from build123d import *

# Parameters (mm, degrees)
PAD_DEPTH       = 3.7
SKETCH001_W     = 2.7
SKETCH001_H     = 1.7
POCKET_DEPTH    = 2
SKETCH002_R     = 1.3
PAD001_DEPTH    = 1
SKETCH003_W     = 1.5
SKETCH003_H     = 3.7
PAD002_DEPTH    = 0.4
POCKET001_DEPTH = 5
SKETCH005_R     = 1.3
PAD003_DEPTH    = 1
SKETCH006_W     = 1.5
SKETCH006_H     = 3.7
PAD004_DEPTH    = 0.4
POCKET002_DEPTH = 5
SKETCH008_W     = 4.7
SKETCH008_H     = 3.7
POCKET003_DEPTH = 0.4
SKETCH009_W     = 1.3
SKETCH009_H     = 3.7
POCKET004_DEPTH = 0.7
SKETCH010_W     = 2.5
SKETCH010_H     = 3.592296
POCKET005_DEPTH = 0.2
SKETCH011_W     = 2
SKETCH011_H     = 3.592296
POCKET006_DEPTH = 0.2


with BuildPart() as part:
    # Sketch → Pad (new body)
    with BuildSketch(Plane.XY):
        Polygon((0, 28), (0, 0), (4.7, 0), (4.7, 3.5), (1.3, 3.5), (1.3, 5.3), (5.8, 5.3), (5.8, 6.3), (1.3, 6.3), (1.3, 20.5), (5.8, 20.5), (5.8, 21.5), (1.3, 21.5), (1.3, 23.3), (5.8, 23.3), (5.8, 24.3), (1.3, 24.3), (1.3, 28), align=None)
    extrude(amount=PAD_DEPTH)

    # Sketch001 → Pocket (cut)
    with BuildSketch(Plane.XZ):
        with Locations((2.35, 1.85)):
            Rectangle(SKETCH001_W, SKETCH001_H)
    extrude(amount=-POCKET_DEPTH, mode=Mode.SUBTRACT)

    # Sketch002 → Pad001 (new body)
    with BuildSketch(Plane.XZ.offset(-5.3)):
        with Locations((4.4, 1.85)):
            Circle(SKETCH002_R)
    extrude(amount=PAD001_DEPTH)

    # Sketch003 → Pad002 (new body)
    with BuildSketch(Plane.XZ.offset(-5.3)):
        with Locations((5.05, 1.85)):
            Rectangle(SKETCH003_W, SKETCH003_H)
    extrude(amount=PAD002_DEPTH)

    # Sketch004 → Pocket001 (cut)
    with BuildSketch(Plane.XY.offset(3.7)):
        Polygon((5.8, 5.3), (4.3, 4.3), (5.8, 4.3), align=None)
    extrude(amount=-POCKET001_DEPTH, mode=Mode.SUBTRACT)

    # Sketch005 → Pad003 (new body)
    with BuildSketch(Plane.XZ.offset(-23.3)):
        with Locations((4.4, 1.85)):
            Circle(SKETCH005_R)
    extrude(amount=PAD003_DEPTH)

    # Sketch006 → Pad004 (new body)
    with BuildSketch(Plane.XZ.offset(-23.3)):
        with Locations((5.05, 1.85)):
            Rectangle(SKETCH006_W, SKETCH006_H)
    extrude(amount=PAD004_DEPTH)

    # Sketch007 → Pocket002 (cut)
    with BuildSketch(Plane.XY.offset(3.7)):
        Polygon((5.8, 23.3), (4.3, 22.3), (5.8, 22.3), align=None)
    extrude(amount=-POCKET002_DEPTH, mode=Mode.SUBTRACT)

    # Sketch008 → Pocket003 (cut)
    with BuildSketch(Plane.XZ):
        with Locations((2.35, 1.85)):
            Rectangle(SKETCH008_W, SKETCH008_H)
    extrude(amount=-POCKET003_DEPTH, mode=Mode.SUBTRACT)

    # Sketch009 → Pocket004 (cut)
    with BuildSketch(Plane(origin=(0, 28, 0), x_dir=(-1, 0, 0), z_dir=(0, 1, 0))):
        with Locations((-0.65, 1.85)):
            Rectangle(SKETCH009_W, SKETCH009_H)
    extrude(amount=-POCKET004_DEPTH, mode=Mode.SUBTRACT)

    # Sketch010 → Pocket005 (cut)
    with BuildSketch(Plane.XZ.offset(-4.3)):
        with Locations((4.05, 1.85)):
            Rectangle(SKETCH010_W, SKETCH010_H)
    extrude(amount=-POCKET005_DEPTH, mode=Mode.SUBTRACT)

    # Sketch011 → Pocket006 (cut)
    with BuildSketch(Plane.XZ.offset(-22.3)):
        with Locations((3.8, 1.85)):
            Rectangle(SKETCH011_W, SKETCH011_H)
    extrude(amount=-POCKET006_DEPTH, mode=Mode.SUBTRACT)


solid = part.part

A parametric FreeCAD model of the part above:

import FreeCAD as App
import Part
import Sketcher
from FreeCAD import Vector
Q = App.Units.Quantity

doc = App.newDocument("Part")
body = doc.addObject("PartDesign::Body", "Body")

# Sketch on XY plane
sketch1 = body.newObject("Sketcher::SketchObject", "Sketch")
sketch1.AttachmentSupport = (doc.getObject("XY_Plane"), [""])
sketch1.MapMode = "FlatFace"
sketch1.addGeometry([
    Part.LineSegment(Vector(0, 28, 0), Vector(0, 0, 0)),  # 0
    Part.LineSegment(Vector(0, 0, 0), Vector(4.7, 0, 0)),  # 1
    Part.LineSegment(Vector(4.7, 0, 0), Vector(4.7, 3.5, 0)),  # 2
    Part.LineSegment(Vector(4.7, 3.5, 0), Vector(1.3, 3.5, 0)),  # 3
    Part.LineSegment(Vector(1.3, 3.5, 0), Vector(1.3, 5.3, 0)),  # 4
    Part.LineSegment(Vector(1.3, 5.3, 0), Vector(5.8, 5.3, 0)),  # 5
    Part.LineSegment(Vector(5.8, 5.3, 0), Vector(5.8, 6.3, 0)),  # 6
    Part.LineSegment(Vector(5.8, 6.3, 0), Vector(1.3, 6.3, 0)),  # 7
    Part.LineSegment(Vector(1.3, 6.3, 0), Vector(1.3, 20.5, 0)),  # 8
    Part.LineSegment(Vector(1.3, 20.5, 0), Vector(5.8, 20.5, 0)),  # 9
    Part.LineSegment(Vector(5.8, 20.5, 0), Vector(5.8, 21.5, 0)),  # 10
    Part.LineSegment(Vector(5.8, 21.5, 0), Vector(1.3, 21.5, 0)),  # 11
    Part.LineSegment(Vector(1.3, 21.5, 0), Vector(1.3, 23.3, 0)),  # 12
    Part.LineSegment(Vector(1.3, 23.3, 0), Vector(5.8, 23.3, 0)),  # 13
    Part.LineSegment(Vector(5.8, 23.3, 0), Vector(5.8, 24.3, 0)),  # 14
    Part.LineSegment(Vector(5.8, 24.3, 0), Vector(1.3, 24.3, 0)),  # 15
    Part.LineSegment(Vector(1.3, 24.3, 0), Vector(1.3, 28, 0)),  # 16
    Part.LineSegment(Vector(1.3, 28, 0), Vector(0, 28, 0)),  # 17
], False)
sketch1.addConstraint([
    Sketcher.Constraint("Coincident", 0, 2, 1, 1),
    Sketcher.Constraint("Coincident", 1, 2, 2, 1),
    Sketcher.Constraint("Coincident", 2, 2, 3, 1),
    Sketcher.Constraint("Coincident", 3, 2, 4, 1),
    Sketcher.Constraint("Coincident", 4, 2, 5, 1),
    Sketcher.Constraint("Coincident", 5, 2, 6, 1),
    Sketcher.Constraint("Coincident", 6, 2, 7, 1),
    Sketcher.Constraint("Coincident", 7, 2, 8, 1),
    Sketcher.Constraint("Coincident", 8, 2, 9, 1),
    Sketcher.Constraint("Coincident", 9, 2, 10, 1),
    Sketcher.Constraint("Coincident", 10, 2, 11, 1),
    Sketcher.Constraint("Coincident", 11, 2, 12, 1),
    Sketcher.Constraint("Coincident", 12, 2, 13, 1),
    Sketcher.Constraint("Coincident", 13, 2, 14, 1),
    Sketcher.Constraint("Coincident", 14, 2, 15, 1),
    Sketcher.Constraint("Coincident", 15, 2, 16, 1),
    Sketcher.Constraint("Coincident", 16, 2, 17, 1),
    Sketcher.Constraint("Coincident", 17, 2, 0, 1),
    Sketcher.Constraint("Vertical", 0),
    Sketcher.Constraint("Horizontal", 1),
    Sketcher.Constraint("Vertical", 2),
    Sketcher.Constraint("Horizontal", 3),
    Sketcher.Constraint("Vertical", 4),
    Sketcher.Constraint("Horizontal", 5),
    Sketcher.Constraint("Vertical", 6),
    Sketcher.Constraint("Horizontal", 7),
    Sketcher.Constraint("Vertical", 8),
    Sketcher.Constraint("Horizontal", 9),
    Sketcher.Constraint("Vertical", 10),
    Sketcher.Constraint("Horizontal", 11),
    Sketcher.Constraint("Vertical", 12),
    Sketcher.Constraint("Horizontal", 13),
    Sketcher.Constraint("Vertical", 14),
    Sketcher.Constraint("Horizontal", 15),
    Sketcher.Constraint("Vertical", 16),
    Sketcher.Constraint("Horizontal", 17),
    Sketcher.Constraint("Coincident", 0, 2, -1, 1),
    Sketcher.Constraint("Vertical", 4, 2, 7, 2),
    Sketcher.Constraint("Vertical", 6, 2, 9, 2),
    Sketcher.Constraint("Vertical", 8, 2, 11, 2),
    Sketcher.Constraint("Vertical", 10, 2, 13, 2),
    Sketcher.Constraint("Vertical", 12, 2, 15, 2),
    Sketcher.Constraint("Equal", 6, 10),
    Sketcher.Constraint("Equal", 4, 12),
    Sketcher.Constraint("Equal", 10, 14),
    Sketcher.Constraint("DistanceY", 0, 2, 0, 1, Q("28 mm")),
    Sketcher.Constraint("DistanceY", 6, 1, 6, 2, Q("1 mm")),
    Sketcher.Constraint("DistanceX", 1, 1, 1, 2, Q("4.7 mm")),
    Sketcher.Constraint("DistanceX", 3, 2, 3, 1, Q("3.4 mm")),
    Sketcher.Constraint("DistanceX", 5, 1, 5, 2, Q("4.5 mm")),
    Sketcher.Constraint("DistanceY", 2, 1, 2, 2, Q("3.5 mm")),
    Sketcher.Constraint("DistanceY", 4, 1, 4, 2, Q("1.8 mm")),
    Sketcher.Constraint("DistanceY", 8, 1, 8, 2, Q("14.2 mm")),
])
pad1 = body.newObject("PartDesign::Pad", "Pad")
pad1.Profile = sketch1
pad1.Length = 3.7

# Sketch on XZ plane
sketch2 = body.newObject("Sketcher::SketchObject", "Sketch001")
sketch2.AttachmentSupport = (doc.getObject("XZ_Plane"), [""])
sketch2.MapMode = "FlatFace"
sketch2.addGeometry([
    Part.LineSegment(Vector(1, 2.7, 0), Vector(1, 1, 0)),
    Part.LineSegment(Vector(1, 1, 0), Vector(3.7, 1, 0)),
    Part.LineSegment(Vector(3.7, 1, 0), Vector(3.7, 2.7, 0)),
    Part.LineSegment(Vector(3.7, 2.7, 0), Vector(1, 2.7, 0)),
], False)
sketch2.addConstraint([
    Sketcher.Constraint("Coincident", 0, 2, 1, 1),
    Sketcher.Constraint("Coincident", 1, 2, 2, 1),
    Sketcher.Constraint("Coincident", 2, 2, 3, 1),
    Sketcher.Constraint("Coincident", 3, 2, 0, 1),
    Sketcher.Constraint("Vertical", 0),
    Sketcher.Constraint("Horizontal", 1),
    Sketcher.Constraint("Vertical", 2),
    Sketcher.Constraint("Horizontal", 3),
    Sketcher.Constraint("DistanceX", 1, 1, 1, 2, Q("2.7 mm")),
    Sketcher.Constraint("DistanceY", 0, 2, 0, 1, Q("1.7 mm")),
    Sketcher.Constraint("DistanceX", -1, 1, 0, 2, Q("1 mm")),
    Sketcher.Constraint("DistanceY", -1, 1, 0, 2, Q("1 mm")),
])
pocket1 = body.newObject("PartDesign::Pocket", "Pocket")
pocket1.Profile = sketch2
pocket1.Length = 2

# Sketch on XZ plane
sketch3 = body.newObject("Sketcher::SketchObject", "Sketch002")
sketch3.AttachmentSupport = (doc.getObject("XZ_Plane"), [""])
sketch3.MapMode = "FlatFace"
sketch3.AttachmentOffset = App.Placement(Vector(0, 0, -5.3), App.Rotation())
sketch3.addGeometry(Part.Circle(Vector(4.4, 1.9, 0), Vector(0, 0, 1), 1.3), False)
sketch3.addConstraint([
    Sketcher.Constraint("Diameter", 0, Q("2.6 mm")),
    Sketcher.Constraint("DistanceX", -1, 1, 0, 3, Q("4.4 mm")),
    Sketcher.Constraint("DistanceY", -1, 1, 0, 3, Q("1.85 mm")),
])
pad2 = body.newObject("PartDesign::Pad", "Pad001")
pad2.Profile = sketch3
pad2.Length = 1

# Sketch on XZ plane
sketch4 = body.newObject("Sketcher::SketchObject", "Sketch003")
sketch4.AttachmentSupport = (doc.getObject("XZ_Plane"), [""])
sketch4.MapMode = "FlatFace"
sketch4.AttachmentOffset = App.Placement(Vector(0, 0, -5.3), App.Rotation())
sketch4.addGeometry([
    Part.LineSegment(Vector(4.3, 3.7, 0), Vector(4.3, 0, 0)),
    Part.LineSegment(Vector(4.3, 0, 0), Vector(5.8, 0, 0)),
    Part.LineSegment(Vector(5.8, 0, 0), Vector(5.8, 3.7, 0)),
    Part.LineSegment(Vector(5.8, 3.7, 0), Vector(4.3, 3.7, 0)),
], False)
sketch4.addConstraint([
    Sketcher.Constraint("Coincident", 0, 2, 1, 1),
    Sketcher.Constraint("Coincident", 1, 2, 2, 1),
    Sketcher.Constraint("Coincident", 2, 2, 3, 1),
    Sketcher.Constraint("Coincident", 3, 2, 0, 1),
    Sketcher.Constraint("Vertical", 0),
    Sketcher.Constraint("Horizontal", 1),
    Sketcher.Constraint("Vertical", 2),
    Sketcher.Constraint("Horizontal", 3),
    Sketcher.Constraint("PointOnObject", 0, 2, -1),
    Sketcher.Constraint("DistanceX", 1, 1, 1, 2, Q("1.5 mm")),
    Sketcher.Constraint("DistanceY", 0, 2, 0, 1, Q("3.7 mm")),
    Sketcher.Constraint("DistanceX", -1, 1, 0, 2, Q("4.3 mm")),
])
pad3 = body.newObject("PartDesign::Pad", "Pad002")
pad3.Profile = sketch4
pad3.Length = 0.4

# Sketch on XY plane
sketch5 = body.newObject("Sketcher::SketchObject", "Sketch004")
sketch5.AttachmentSupport = (doc.getObject("XY_Plane"), [""])
sketch5.MapMode = "FlatFace"
sketch5.AttachmentOffset = App.Placement(Vector(0, 0, 3.7), App.Rotation())
sketch5.addGeometry([
    Part.LineSegment(Vector(5.8, 5.3, 0), Vector(4.3, 4.3, 0)),
    Part.LineSegment(Vector(4.3, 4.3, 0), Vector(5.8, 4.3, 0)),
    Part.LineSegment(Vector(5.8, 4.3, 0), Vector(5.8, 5.3, 0)),
], False)
sketch5.addConstraint([
    Sketcher.Constraint("Coincident", 0, 2, 1, 1),
    Sketcher.Constraint("Coincident", 1, 2, 2, 1),
    Sketcher.Constraint("Coincident", 2, 2, 0, 1),
    Sketcher.Constraint("Horizontal", 1),
    Sketcher.Constraint("Vertical", 2),
    Sketcher.Constraint("DistanceY", 2, 1, 2, 2, Q("1 mm")),
    Sketcher.Constraint("DistanceX", 1, 1, 1, 2, Q("1.5 mm")),
    Sketcher.Constraint("DistanceX", -1, 1, 0, 2, Q("4.3 mm")),
    Sketcher.Constraint("DistanceY", -1, 1, 0, 2, Q("4.3 mm")),
])
pocket2 = body.newObject("PartDesign::Pocket", "Pocket001")
pocket2.Profile = sketch5
pocket2.Length = 5

# Sketch on XZ plane
sketch6 = body.newObject("Sketcher::SketchObject", "Sketch005")
sketch6.AttachmentSupport = (doc.getObject("XZ_Plane"), [""])
sketch6.MapMode = "FlatFace"
sketch6.AttachmentOffset = App.Placement(Vector(0, 0, -23.3), App.Rotation())
sketch6.addGeometry(Part.Circle(Vector(4.4, 1.9, 0), Vector(0, 0, 1), 1.3), False)
sketch6.addConstraint([
    Sketcher.Constraint("Diameter", 0, Q("2.6 mm")),
    Sketcher.Constraint("DistanceX", -1, 1, 0, 3, Q("4.4 mm")),
    Sketcher.Constraint("DistanceY", -1, 1, 0, 3, Q("1.85 mm")),
])
pad4 = body.newObject("PartDesign::Pad", "Pad003")
pad4.Profile = sketch6
pad4.Length = 1

# Sketch on XZ plane
sketch7 = body.newObject("Sketcher::SketchObject", "Sketch006")
sketch7.AttachmentSupport = (doc.getObject("XZ_Plane"), [""])
sketch7.MapMode = "FlatFace"
sketch7.AttachmentOffset = App.Placement(Vector(0, 0, -23.3), App.Rotation())
sketch7.addGeometry([
    Part.LineSegment(Vector(4.3, 3.7, 0), Vector(4.3, 0, 0)),
    Part.LineSegment(Vector(4.3, 0, 0), Vector(5.8, 0, 0)),
    Part.LineSegment(Vector(5.8, 0, 0), Vector(5.8, 3.7, 0)),
    Part.LineSegment(Vector(5.8, 3.7, 0), Vector(4.3, 3.7, 0)),
], False)
sketch7.addConstraint([
    Sketcher.Constraint("Coincident", 0, 2, 1, 1),
    Sketcher.Constraint("Coincident", 1, 2, 2, 1),
    Sketcher.Constraint("Coincident", 2, 2, 3, 1),
    Sketcher.Constraint("Coincident", 3, 2, 0, 1),
    Sketcher.Constraint("Vertical", 0),
    Sketcher.Constraint("Horizontal", 1),
    Sketcher.Constraint("Vertical", 2),
    Sketcher.Constraint("Horizontal", 3),
    Sketcher.Constraint("PointOnObject", 0, 2, -1),
    Sketcher.Constraint("DistanceX", 1, 1, 1, 2, Q("1.5 mm")),
    Sketcher.Constraint("DistanceY", 0, 2, 0, 1, Q("3.7 mm")),
    Sketcher.Constraint("DistanceX", -1, 1, 0, 2, Q("4.3 mm")),
])
pad5 = body.newObject("PartDesign::Pad", "Pad004")
pad5.Profile = sketch7
pad5.Length = 0.4

# Sketch on XY plane
sketch8 = body.newObject("Sketcher::SketchObject", "Sketch007")
sketch8.AttachmentSupport = (doc.getObject("XY_Plane"), [""])
sketch8.MapMode = "FlatFace"
sketch8.AttachmentOffset = App.Placement(Vector(0, 0, 3.7), App.Rotation())
sketch8.addGeometry([
    Part.LineSegment(Vector(5.8, 23.3, 0), Vector(4.3, 22.3, 0)),
    Part.LineSegment(Vector(4.3, 22.3, 0), Vector(5.8, 22.3, 0)),
    Part.LineSegment(Vector(5.8, 22.3, 0), Vector(5.8, 23.3, 0)),
], False)
sketch8.addConstraint([
    Sketcher.Constraint("Coincident", 0, 2, 1, 1),
    Sketcher.Constraint("Coincident", 1, 2, 2, 1),
    Sketcher.Constraint("Coincident", 2, 2, 0, 1),
    Sketcher.Constraint("Horizontal", 1),
    Sketcher.Constraint("Vertical", 2),
    Sketcher.Constraint("DistanceY", 2, 1, 2, 2, Q("1 mm")),
    Sketcher.Constraint("DistanceX", 1, 1, 1, 2, Q("1.5 mm")),
    Sketcher.Constraint("DistanceX", -1, 1, 0, 2, Q("4.3 mm")),
    Sketcher.Constraint("DistanceY", -1, 1, 0, 2, Q("22.3 mm")),
])
pocket3 = body.newObject("PartDesign::Pocket", "Pocket002")
pocket3.Profile = sketch8
pocket3.Length = 5

# Sketch on XZ plane
sketch9 = body.newObject("Sketcher::SketchObject", "Sketch008")
sketch9.AttachmentSupport = (doc.getObject("XZ_Plane"), [""])
sketch9.MapMode = "FlatFace"
sketch9.addGeometry([
    Part.LineSegment(Vector(0, 3.7, 0), Vector(0, 0, 0)),
    Part.LineSegment(Vector(0, 0, 0), Vector(4.7, 0, 0)),
    Part.LineSegment(Vector(4.7, 0, 0), Vector(4.7, 3.7, 0)),
    Part.LineSegment(Vector(4.7, 3.7, 0), Vector(0, 3.7, 0)),
], False)
sketch9.addConstraint([
    Sketcher.Constraint("Coincident", 0, 2, 1, 1),
    Sketcher.Constraint("Coincident", 1, 2, 2, 1),
    Sketcher.Constraint("Coincident", 2, 2, 3, 1),
    Sketcher.Constraint("Coincident", 3, 2, 0, 1),
    Sketcher.Constraint("Vertical", 0),
    Sketcher.Constraint("Horizontal", 1),
    Sketcher.Constraint("Vertical", 2),
    Sketcher.Constraint("Horizontal", 3),
    Sketcher.Constraint("Coincident", 0, 2, -1, 1),
    Sketcher.Constraint("DistanceX", 1, 1, 1, 2, Q("4.7 mm")),
    Sketcher.Constraint("DistanceY", 0, 2, 0, 1, Q("3.7 mm")),
])
pocket4 = body.newObject("PartDesign::Pocket", "Pocket003")
pocket4.Profile = sketch9
pocket4.Length = 0.4

# Sketch on XZ plane
sketch10 = body.newObject("Sketcher::SketchObject", "Sketch009")
sketch10.AttachmentSupport = (doc.getObject("XZ_Plane"), [""])
sketch10.MapMode = "FlatFace"
sketch10.AttachmentOffset = App.Placement(Vector(0, 0, -28), App.Rotation())
sketch10.addGeometry([
    Part.LineSegment(Vector(1.3, 3.7, 0), Vector(1.3, 0, 0)),
    Part.LineSegment(Vector(1.3, 0, 0), Vector(0, 0, 0)),
    Part.LineSegment(Vector(0, 0, 0), Vector(0, 3.7, 0)),
    Part.LineSegment(Vector(0, 3.7, 0), Vector(1.3, 3.7, 0)),
], False)
sketch10.addConstraint([
    Sketcher.Constraint("Coincident", 0, 2, 1, 1),
    Sketcher.Constraint("Coincident", 1, 2, 2, 1),
    Sketcher.Constraint("Coincident", 2, 2, 3, 1),
    Sketcher.Constraint("Coincident", 3, 2, 0, 1),
    Sketcher.Constraint("Vertical", 0),
    Sketcher.Constraint("Horizontal", 1),
    Sketcher.Constraint("Vertical", 2),
    Sketcher.Constraint("Horizontal", 3),
    Sketcher.Constraint("Coincident", 1, 2, -1, 1),
    Sketcher.Constraint("DistanceX", 1, 2, 1, 1, Q("1.3 mm")),
    Sketcher.Constraint("DistanceY", 0, 2, 0, 1, Q("3.7 mm")),
])
pocket5 = body.newObject("PartDesign::Pocket", "Pocket004")
pocket5.Profile = sketch10
pocket5.Length = 0.7
pocket5.Reversed = True

# Sketch on XZ plane
sketch11 = body.newObject("Sketcher::SketchObject", "Sketch010")
sketch11.AttachmentSupport = (doc.getObject("XZ_Plane"), [""])
sketch11.MapMode = "FlatFace"
sketch11.AttachmentOffset = App.Placement(Vector(0, 0, -4.3), App.Rotation())
sketch11.addGeometry([
    Part.LineSegment(Vector(2.8, 3.6, 0), Vector(2.8, 0.1, 0)),
    Part.LineSegment(Vector(2.8, 0.1, 0), Vector(5.3, 0.1, 0)),
    Part.LineSegment(Vector(5.3, 0.1, 0), Vector(5.3, 3.6, 0)),
    Part.LineSegment(Vector(5.3, 3.6, 0), Vector(2.8, 3.6, 0)),
], False)
sketch11.addConstraint([
    Sketcher.Constraint("Coincident", 0, 2, 1, 1),
    Sketcher.Constraint("Coincident", 1, 2, 2, 1),
    Sketcher.Constraint("Coincident", 2, 2, 3, 1),
    Sketcher.Constraint("Coincident", 3, 2, 0, 1),
    Sketcher.Constraint("Vertical", 0),
    Sketcher.Constraint("Horizontal", 1),
    Sketcher.Constraint("Vertical", 2),
    Sketcher.Constraint("Horizontal", 3),
    Sketcher.Constraint("DistanceX", 1, 1, 1, 2, Q("2.5 mm")),
    Sketcher.Constraint("DistanceX", -1, 1, 0, 2, Q("2.8 mm")),
    Sketcher.Constraint("DistanceY", 0, 2, 0, 1, Q("3.592296 mm")),
    Sketcher.Constraint("DistanceY", -1, 1, 0, 2, Q("0.053852 mm")),
])
pocket6 = body.newObject("PartDesign::Pocket", "Pocket005")
pocket6.Profile = sketch11
pocket6.Length = 0.2

# Sketch on XZ plane
sketch12 = body.newObject("Sketcher::SketchObject", "Sketch011")
sketch12.AttachmentSupport = (doc.getObject("XZ_Plane"), [""])
sketch12.MapMode = "FlatFace"
sketch12.AttachmentOffset = App.Placement(Vector(0, 0, -22.3), App.Rotation())
sketch12.addGeometry([
    Part.LineSegment(Vector(2.8, 3.6, 0), Vector(2.8, 0.1, 0)),
    Part.LineSegment(Vector(2.8, 0.1, 0), Vector(4.8, 0.1, 0)),
    Part.LineSegment(Vector(4.8, 0.1, 0), Vector(4.8, 3.6, 0)),
    Part.LineSegment(Vector(4.8, 3.6, 0), Vector(2.8, 3.6, 0)),
], False)
sketch12.addConstraint([
    Sketcher.Constraint("Coincident", 0, 2, 1, 1),
    Sketcher.Constraint("Coincident", 1, 2, 2, 1),
    Sketcher.Constraint("Coincident", 2, 2, 3, 1),
    Sketcher.Constraint("Coincident", 3, 2, 0, 1),
    Sketcher.Constraint("Vertical", 0),
    Sketcher.Constraint("Horizontal", 1),
    Sketcher.Constraint("Vertical", 2),
    Sketcher.Constraint("Horizontal", 3),
    Sketcher.Constraint("DistanceX", 1, 1, 1, 2, Q("2 mm")),
    Sketcher.Constraint("DistanceX", -1, 1, 0, 2, Q("2.8 mm")),
    Sketcher.Constraint("DistanceY", 0, 2, 0, 1, Q("3.592296 mm")),
    Sketcher.Constraint("DistanceY", -1, 1, 0, 2, Q("0.053852 mm")),
])
pocket7 = body.newObject("PartDesign::Pocket", "Pocket006")
pocket7.Profile = sketch12
pocket7.Length = 0.2

doc.recompute()
